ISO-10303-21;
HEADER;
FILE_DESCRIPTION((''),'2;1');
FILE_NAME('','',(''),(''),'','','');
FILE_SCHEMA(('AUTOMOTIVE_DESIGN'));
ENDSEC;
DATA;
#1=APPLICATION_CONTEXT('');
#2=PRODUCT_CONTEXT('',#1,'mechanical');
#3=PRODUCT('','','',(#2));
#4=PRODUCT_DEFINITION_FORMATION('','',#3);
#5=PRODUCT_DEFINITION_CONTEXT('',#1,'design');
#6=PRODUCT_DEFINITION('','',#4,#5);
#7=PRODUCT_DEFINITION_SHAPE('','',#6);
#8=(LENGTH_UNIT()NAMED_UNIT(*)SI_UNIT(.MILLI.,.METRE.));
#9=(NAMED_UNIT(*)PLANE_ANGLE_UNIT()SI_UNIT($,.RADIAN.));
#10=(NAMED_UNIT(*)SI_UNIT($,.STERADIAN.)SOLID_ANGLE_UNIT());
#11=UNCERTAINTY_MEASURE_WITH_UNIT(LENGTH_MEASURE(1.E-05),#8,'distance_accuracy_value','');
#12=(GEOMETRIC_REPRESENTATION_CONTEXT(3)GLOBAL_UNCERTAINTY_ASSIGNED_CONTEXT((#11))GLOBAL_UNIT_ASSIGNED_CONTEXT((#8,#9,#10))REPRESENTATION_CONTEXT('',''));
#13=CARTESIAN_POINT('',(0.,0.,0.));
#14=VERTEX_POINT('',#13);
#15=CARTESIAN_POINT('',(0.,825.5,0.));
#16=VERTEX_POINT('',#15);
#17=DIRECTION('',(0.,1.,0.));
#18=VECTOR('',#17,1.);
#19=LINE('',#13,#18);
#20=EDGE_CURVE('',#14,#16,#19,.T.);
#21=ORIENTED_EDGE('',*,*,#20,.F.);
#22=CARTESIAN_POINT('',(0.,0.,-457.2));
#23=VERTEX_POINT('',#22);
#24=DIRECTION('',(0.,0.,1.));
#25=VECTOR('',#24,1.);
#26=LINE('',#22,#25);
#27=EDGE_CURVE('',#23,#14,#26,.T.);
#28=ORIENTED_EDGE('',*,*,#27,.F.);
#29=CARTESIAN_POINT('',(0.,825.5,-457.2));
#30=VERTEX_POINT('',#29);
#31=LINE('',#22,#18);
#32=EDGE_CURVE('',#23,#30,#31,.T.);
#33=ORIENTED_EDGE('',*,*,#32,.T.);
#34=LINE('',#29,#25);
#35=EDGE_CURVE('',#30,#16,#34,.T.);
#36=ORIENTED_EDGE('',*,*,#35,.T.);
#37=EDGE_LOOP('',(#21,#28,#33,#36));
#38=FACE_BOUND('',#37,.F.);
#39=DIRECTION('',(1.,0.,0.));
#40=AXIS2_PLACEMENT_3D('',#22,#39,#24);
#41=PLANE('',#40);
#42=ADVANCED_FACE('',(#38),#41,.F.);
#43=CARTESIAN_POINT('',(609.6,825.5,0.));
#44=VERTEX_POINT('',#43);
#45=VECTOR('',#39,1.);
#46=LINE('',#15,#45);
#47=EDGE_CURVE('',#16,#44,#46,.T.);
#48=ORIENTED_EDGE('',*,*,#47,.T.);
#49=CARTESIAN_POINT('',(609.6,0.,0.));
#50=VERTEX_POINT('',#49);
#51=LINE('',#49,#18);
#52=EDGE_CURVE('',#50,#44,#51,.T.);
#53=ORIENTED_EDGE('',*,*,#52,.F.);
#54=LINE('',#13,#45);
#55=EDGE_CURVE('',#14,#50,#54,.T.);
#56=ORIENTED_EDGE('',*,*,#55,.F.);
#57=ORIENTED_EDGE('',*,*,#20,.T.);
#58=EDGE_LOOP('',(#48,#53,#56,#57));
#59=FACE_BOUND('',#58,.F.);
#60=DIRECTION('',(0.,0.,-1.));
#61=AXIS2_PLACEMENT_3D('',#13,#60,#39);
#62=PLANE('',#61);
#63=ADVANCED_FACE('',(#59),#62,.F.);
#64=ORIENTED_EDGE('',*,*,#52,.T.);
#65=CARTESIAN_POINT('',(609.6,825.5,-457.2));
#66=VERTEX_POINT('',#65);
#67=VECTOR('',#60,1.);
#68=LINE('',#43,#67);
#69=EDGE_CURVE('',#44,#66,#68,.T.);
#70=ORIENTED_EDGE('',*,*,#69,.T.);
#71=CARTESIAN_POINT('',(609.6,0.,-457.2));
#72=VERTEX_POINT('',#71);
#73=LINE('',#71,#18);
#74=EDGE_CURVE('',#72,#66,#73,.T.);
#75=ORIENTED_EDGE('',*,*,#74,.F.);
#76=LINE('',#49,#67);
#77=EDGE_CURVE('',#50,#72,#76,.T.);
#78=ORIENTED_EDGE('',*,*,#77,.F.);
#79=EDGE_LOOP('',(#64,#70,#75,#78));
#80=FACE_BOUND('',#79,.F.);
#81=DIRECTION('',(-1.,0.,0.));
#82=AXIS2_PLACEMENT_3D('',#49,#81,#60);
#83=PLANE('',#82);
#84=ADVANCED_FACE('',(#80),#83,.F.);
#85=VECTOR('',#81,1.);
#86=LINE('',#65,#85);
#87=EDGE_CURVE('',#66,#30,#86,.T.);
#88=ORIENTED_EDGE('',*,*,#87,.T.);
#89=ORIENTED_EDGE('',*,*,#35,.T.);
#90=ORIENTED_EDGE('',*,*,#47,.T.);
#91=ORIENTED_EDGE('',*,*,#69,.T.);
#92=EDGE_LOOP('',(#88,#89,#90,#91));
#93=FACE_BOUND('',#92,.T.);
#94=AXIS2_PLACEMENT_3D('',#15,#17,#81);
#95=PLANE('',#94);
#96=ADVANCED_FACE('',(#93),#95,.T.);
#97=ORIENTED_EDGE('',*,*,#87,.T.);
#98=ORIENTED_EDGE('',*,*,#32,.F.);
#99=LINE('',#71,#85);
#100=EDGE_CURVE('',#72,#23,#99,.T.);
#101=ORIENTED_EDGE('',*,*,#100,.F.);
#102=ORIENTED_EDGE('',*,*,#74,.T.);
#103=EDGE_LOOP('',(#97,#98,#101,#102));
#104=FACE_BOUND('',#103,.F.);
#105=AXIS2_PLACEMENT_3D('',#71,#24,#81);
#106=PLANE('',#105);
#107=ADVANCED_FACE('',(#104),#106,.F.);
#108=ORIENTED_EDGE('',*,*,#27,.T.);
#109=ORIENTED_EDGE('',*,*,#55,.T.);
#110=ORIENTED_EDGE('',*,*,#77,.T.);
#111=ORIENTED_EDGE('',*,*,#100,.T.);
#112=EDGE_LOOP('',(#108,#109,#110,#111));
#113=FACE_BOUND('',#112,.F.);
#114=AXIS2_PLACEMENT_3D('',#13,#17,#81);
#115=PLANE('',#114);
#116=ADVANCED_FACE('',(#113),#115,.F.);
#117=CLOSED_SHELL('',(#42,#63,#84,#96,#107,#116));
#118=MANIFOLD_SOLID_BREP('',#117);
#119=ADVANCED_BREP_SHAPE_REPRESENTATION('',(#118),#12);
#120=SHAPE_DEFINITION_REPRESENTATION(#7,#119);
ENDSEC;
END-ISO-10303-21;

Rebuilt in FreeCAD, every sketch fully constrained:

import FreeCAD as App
import Part
import Sketcher
from FreeCAD import Vector
Q = App.Units.Quantity

doc = App.newDocument("Part")
body = doc.addObject("PartDesign::Body", "Body")

# Sketch on XZ plane
sketch1 = body.newObject("Sketcher::SketchObject", "Sketch")
sketch1.AttachmentSupport = (doc.getObject("XZ_Plane"), [""])
sketch1.MapMode = "FlatFace"
sketch1.addGeometry([
    Part.LineSegment(Vector(0, -457.2, 0), Vector(0, 0, 0)),
    Part.LineSegment(Vector(0, 0, 0), Vector(609.6, 0, 0)),
    Part.LineSegment(Vector(609.6, 0, 0), Vector(609.6, -457.2, 0)),
    Part.LineSegment(Vector(609.6, -457.2, 0), Vector(0, -457.2, 0)),
], False)
sketch1.addConstraint([
    Sketcher.Constraint("Coincident", 0, 2, 1, 1),
    Sketcher.Constraint("Coincident", 1, 2, 2, 1),
    Sketcher.Constraint("Coincident", 2, 2, 3, 1),
    Sketcher.Constraint("Coincident", 3, 2, 0, 1),
    Sketcher.Constraint("Vertical", 0),
    Sketcher.Constraint("Horizontal", 1),
    Sketcher.Constraint("Vertical", 2),
    Sketcher.Constraint("Horizontal", 3),
    Sketcher.Constraint("Coincident", 0, 2, -1, 1),
    Sketcher.Constraint("DistanceX", 1, 1, 1, 2, Q("24 in")),
    Sketcher.Constraint("DistanceY", 0, 1, 0, 2, Q("18 in")),
])
pad1 = body.newObject("PartDesign::Pad", "Pad")
pad1.Profile = sketch1
pad1.Length = Q("32.5 in")
pad1.Reversed = True

doc.recompute()
